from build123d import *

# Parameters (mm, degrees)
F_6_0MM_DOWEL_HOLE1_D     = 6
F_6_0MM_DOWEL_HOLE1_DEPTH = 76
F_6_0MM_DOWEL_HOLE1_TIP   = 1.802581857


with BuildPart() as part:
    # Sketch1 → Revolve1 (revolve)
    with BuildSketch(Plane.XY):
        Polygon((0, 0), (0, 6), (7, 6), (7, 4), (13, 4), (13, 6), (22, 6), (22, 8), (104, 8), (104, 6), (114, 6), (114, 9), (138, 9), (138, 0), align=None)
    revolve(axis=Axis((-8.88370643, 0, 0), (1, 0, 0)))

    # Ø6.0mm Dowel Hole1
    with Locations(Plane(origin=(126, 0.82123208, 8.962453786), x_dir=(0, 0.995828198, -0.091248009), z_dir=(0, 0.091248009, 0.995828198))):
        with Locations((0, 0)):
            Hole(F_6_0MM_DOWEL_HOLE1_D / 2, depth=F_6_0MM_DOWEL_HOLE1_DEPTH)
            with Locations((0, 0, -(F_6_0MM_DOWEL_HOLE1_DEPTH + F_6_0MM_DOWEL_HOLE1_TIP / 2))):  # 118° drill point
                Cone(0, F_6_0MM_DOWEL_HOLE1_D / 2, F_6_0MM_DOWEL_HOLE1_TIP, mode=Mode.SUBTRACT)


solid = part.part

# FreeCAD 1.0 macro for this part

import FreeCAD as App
import Part
import Sketcher

doc = App.newDocument("Part")
body = doc.addObject("PartDesign::Body", "Body")

# Sketch on XY plane
sketch1 = body.newObject("Sketcher::SketchObject", "Sketch")
sketch1.AttachmentSupport = (doc.getObject("XY_Plane"), [""])
sketch1.MapMode = "FlatFace"
sketch1.addGeometry([
    Part.LineSegment(App.Vector(0, 6, 0), App.Vector(0, 0, 0)),  # 0
    Part.LineSegment(App.Vector(0, 0, 0), App.Vector(138, 0, 0)),  # 1
    Part.LineSegment(App.Vector(138, 0, 0), App.Vector(138, 9, 0)),  # 2
    Part.LineSegment(App.Vector(138, 9, 0), App.Vector(114, 9, 0)),  # 3
    Part.LineSegment(App.Vector(114, 9, 0), App.Vector(114, 6, 0)),  # 4
    Part.LineSegment(App.Vector(114, 6, 0), App.Vector(104, 6, 0)),  # 5
    Part.LineSegment(App.Vector(104, 6, 0), App.Vector(104, 8, 0)),  # 6
    Part.LineSegment(App.Vector(104, 8, 0), App.Vector(22, 8, 0)),  # 7
    Part.LineSegment(App.Vector(22, 8, 0), App.Vector(22, 6, 0)),  # 8
    Part.LineSegment(App.Vector(22, 6, 0), App.Vector(13, 6, 0)),  # 9
    Part.LineSegment(App.Vector(13, 6, 0), App.Vector(13, 4, 0)),  # 10
    Part.LineSegment(App.Vector(13, 4, 0), App.Vector(7, 4, 0)),  # 11
    Part.LineSegment(App.Vector(7, 4, 0), App.Vector(7, 6, 0)),  # 12
    Part.LineSegment(App.Vector(7, 6, 0), App.Vector(0, 6, 0)),  # 13
], False)
sketch1.addConstraint([
    Sketcher.Constraint("Coincident", 0, 2, 1, 1),
    Sketcher.Constraint("Coincident", 1, 2, 2, 1),
    Sketcher.Constraint("Coincident", 2, 2, 3, 1),
    Sketcher.Constraint("Coincident", 3, 2, 4, 1),
    Sketcher.Constraint("Coincident", 4, 2, 5, 1),
    Sketcher.Constraint("Coincident", 5, 2, 6, 1),
    Sketcher.Constraint("Coincident", 6, 2, 7, 1),
    Sketcher.Constraint("Coincident", 7, 2, 8, 1),
    Sketcher.Constraint("Coincident", 8, 2, 9, 1),
    Sketcher.Constraint("Coincident", 9, 2, 10, 1),
    Sketcher.Constraint("Coincident", 10, 2, 11, 1),
    Sketcher.Constraint("Coincident", 11, 2, 12, 1),
    Sketcher.Constraint("Coincident", 12, 2, 13, 1),
    Sketcher.Constraint("Coincident", 13, 2, 0, 1),
    Sketcher.Constraint("Vertical", 0),
    Sketcher.Constraint("Horizontal", 1),
    Sketcher.Constraint("Vertical", 2),
    Sketcher.Constraint("Horizontal", 3),
    Sketcher.Constraint("Vertical", 4),
    Sketcher.Constraint("Horizontal", 5),
    Sketcher.Constraint("Vertical", 6),
    Sketcher.Constraint("Horizontal", 7),
    Sketcher.Constraint("Vertical", 8),
    Sketcher.Constraint("Horizontal", 9),
    Sketcher.Constraint("Vertical", 10),
    Sketcher.Constraint("Horizontal", 11),
    Sketcher.Constraint("Vertical", 12),
    Sketcher.Constraint("Horizontal", 13),
    Sketcher.Constraint("Coincident", 0, 2, -1, 1),
    Sketcher.Constraint("Horizontal", 5, 2, 8, 2),
    Sketcher.Constraint("Horizontal", 9, 2, 12, 2),
    Sketcher.Constraint("Equal", 11, 0),
    Sketcher.Constraint("Equal", 9, 2),
    Sketcher.Constraint("Equal", 8, 10),
    Sketcher.Constraint("DistanceX", 1, 1, 1, 2, 138.0),
    Sketcher.Constraint("DistanceX", 3, 2, 3, 1, 24.0),
    Sketcher.Constraint("DistanceX", 5, 2, 5, 1, 10.0),
    Sketcher.Constraint("DistanceX", 7, 2, 7, 1, 82.0),
    Sketcher.Constraint("DistanceX", 9, 2, 9, 1, 9.0),
    Sketcher.Constraint("DistanceX", 11, 2, 11, 1, 6.0),
    Sketcher.Constraint("DistanceY", 6, 1, 6, 2, 2.0),
])
revolution = body.newObject("PartDesign::Revolution", "Revolution")
revolution.Profile = sketch1
revolution.ReferenceAxis = (sketch1, ["H_Axis"])
revolution.Angle = 360

# Sketch on an angled plane
sketch2 = body.newObject("Sketcher::SketchObject", "Sketch001")
sketch2.Placement = App.Placement(App.Vector(0, 0.821232, 8.962454), App.Rotation(App.Vector(0, 0.995828198, -0.091248009), App.Vector(-0.999999999, 0, 0), App.Vector(0, 0.091248009, 0.995828198), "ZXY"))
sketch2.addGeometry(Part.Circle(App.Vector(0, -126, 0), App.Vector(0, 0, 1), 3), False)
sketch2.addConstraint([
    Sketcher.Constraint("PointOnObject", 0, 3, -2),
    Sketcher.Constraint("Diameter", 0, 6.0),
    Sketcher.Constraint("DistanceY", 0, 3, -1, 1, 126.0),
])
doc.recompute()
hole = body.newObject("PartDesign::Hole", "Hole")
hole.Profile = sketch2
hole.ThreadType = "None"
hole.Diameter = 6
hole.DepthType = "Dimension"
hole.Depth = 76
hole.DrillPoint = "Angled"
hole.DrillPointAngle = 118

doc.recompute()
